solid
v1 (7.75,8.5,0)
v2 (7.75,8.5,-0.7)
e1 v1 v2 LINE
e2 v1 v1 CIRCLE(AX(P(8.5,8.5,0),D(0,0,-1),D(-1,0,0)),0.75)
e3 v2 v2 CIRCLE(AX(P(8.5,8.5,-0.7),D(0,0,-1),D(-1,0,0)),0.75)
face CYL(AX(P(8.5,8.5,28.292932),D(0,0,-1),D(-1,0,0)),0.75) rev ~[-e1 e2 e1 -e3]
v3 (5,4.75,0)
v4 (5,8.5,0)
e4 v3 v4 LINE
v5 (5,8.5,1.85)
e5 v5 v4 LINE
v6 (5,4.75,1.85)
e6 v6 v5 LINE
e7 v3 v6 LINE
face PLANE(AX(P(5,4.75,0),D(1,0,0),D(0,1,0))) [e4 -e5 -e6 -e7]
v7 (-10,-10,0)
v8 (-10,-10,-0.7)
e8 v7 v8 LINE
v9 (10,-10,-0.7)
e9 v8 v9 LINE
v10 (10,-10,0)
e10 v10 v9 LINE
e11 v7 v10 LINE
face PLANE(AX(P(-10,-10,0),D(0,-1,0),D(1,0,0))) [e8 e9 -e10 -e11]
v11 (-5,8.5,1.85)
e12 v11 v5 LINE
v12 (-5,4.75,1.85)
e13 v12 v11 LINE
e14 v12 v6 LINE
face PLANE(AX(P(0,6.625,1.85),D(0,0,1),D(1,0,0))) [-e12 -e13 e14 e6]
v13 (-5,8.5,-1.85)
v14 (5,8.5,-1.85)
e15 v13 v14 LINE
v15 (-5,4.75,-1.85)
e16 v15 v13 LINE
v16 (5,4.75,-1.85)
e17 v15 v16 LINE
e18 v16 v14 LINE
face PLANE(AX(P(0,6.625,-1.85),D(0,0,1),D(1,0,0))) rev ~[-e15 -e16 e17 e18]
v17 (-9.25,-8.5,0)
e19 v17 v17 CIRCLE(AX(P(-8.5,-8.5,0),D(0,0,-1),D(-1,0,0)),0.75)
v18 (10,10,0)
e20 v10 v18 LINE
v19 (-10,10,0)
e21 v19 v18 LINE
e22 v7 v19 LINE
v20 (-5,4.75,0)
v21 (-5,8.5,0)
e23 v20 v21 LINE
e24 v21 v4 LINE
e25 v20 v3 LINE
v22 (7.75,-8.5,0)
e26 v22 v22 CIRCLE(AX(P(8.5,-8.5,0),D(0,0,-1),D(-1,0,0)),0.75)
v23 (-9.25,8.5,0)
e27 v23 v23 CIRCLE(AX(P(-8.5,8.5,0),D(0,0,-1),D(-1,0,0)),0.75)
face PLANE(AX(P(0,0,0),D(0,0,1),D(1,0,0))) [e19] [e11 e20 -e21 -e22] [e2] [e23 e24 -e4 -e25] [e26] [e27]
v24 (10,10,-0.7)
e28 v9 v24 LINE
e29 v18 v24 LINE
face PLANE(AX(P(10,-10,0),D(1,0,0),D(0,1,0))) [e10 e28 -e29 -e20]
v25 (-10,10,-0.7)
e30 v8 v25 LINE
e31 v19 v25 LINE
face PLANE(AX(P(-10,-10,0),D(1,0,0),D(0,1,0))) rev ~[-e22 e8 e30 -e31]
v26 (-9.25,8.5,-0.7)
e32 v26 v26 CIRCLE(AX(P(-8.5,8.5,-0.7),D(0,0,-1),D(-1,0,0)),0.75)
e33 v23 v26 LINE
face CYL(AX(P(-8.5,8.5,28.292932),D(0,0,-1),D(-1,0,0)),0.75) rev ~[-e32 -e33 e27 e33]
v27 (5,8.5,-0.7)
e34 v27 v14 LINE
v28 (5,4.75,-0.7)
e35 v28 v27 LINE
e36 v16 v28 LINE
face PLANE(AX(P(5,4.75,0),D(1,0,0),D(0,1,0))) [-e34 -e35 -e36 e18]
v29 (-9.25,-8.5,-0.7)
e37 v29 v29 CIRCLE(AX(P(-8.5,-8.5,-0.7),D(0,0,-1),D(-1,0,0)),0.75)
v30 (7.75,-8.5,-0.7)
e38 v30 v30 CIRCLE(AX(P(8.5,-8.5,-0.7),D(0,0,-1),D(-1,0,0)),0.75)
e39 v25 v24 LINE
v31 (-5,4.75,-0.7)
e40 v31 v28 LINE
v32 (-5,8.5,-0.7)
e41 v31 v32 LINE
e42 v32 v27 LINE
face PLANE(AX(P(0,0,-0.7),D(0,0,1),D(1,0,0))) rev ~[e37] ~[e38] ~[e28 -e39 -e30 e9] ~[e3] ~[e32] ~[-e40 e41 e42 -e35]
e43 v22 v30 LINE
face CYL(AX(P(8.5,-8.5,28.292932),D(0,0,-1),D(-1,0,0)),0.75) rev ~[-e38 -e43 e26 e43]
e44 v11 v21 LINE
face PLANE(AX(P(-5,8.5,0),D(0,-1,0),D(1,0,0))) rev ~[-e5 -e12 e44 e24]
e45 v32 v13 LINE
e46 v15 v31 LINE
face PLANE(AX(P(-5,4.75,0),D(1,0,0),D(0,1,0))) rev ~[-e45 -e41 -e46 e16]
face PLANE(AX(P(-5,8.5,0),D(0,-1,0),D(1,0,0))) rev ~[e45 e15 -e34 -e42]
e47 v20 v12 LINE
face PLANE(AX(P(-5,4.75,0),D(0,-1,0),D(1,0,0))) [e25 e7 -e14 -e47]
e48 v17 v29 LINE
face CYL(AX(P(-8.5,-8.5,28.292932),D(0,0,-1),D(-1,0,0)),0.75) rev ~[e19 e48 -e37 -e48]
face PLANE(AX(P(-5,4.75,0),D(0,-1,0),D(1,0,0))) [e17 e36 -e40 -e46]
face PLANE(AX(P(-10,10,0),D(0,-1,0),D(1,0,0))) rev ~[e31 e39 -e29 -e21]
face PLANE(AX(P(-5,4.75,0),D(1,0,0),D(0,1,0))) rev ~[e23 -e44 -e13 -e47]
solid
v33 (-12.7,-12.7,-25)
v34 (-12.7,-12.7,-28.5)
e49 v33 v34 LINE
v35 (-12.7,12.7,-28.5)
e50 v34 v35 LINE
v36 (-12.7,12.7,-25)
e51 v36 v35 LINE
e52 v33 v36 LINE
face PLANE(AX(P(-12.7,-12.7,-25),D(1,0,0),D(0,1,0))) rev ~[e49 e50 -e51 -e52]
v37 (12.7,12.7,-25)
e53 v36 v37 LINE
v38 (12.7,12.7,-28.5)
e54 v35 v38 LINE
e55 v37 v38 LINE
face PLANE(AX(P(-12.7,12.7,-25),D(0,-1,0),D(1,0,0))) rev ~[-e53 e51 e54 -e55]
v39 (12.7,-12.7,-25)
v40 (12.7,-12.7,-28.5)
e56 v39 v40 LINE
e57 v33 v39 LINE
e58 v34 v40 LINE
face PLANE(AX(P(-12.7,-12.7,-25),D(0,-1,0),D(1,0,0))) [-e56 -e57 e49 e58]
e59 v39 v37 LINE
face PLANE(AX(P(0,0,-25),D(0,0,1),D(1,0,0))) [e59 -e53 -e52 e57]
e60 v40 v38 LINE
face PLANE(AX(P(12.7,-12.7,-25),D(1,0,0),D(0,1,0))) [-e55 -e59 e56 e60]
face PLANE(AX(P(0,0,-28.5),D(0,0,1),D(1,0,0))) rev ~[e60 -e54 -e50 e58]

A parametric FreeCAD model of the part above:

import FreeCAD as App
import Part
import Sketcher


def add_polygon(sketch, points):
    """Adds a closed chain of lines whose ends are joined by coincident constraints."""
    first, n = sketch.GeometryCount, len(points)
    for a, b in zip(points, points[1:] + points[:1]):
        sketch.addGeometry(Part.LineSegment(App.Vector(*a, 0), App.Vector(*b, 0)), False)
    for i in range(n):
        sketch.addConstraint(Sketcher.Constraint("Coincident", first + i, 2, first + (i + 1) % n, 1))

doc = App.newDocument("Part")
body = doc.addObject("PartDesign::Body", "Body")

# Sketch on XY plane
sketch1 = body.newObject("Sketcher::SketchObject", "Sketch")
sketch1.AttachmentSupport = (doc.getObject("XY_Plane"), [""])
sketch1.MapMode = "FlatFace"
add_polygon(sketch1, [(-10, 10), (-10, -10), (10, -10), (10, 10)])  # lines 0-3
sketch1.addConstraint(Sketcher.Constraint("Vertical", 0))
sketch1.addConstraint(Sketcher.Constraint("Horizontal", 1))
sketch1.addConstraint(Sketcher.Constraint("Vertical", 2))
sketch1.addConstraint(Sketcher.Constraint("Horizontal", 3))
sketch1.addConstraint(Sketcher.Constraint("Symmetric", 0, 2, 2, 2, -1, 1))
sketch1.addConstraint(Sketcher.Constraint("Equal", 3, 0))
sketch1.addConstraint(Sketcher.Constraint("DistanceX", 1, 1, 1, 2, 20.0))
pad1 = body.newObject("PartDesign::Pad", "Pad")
pad1.Profile = sketch1
pad1.Length = 0.7
pad1.Reversed = True

# Sketch on XY plane
sketch2 = body.newObject("Sketcher::SketchObject", "Sketch001")
sketch2.AttachmentSupport = (doc.getObject("XY_Plane"), [""])
sketch2.MapMode = "FlatFace"
sketch2.addGeometry(Part.Circle(App.Vector(-8.5, 8.5, 0), App.Vector(0, 0, 1), 0.8), False)
sketch2.addGeometry(Part.Circle(App.Vector(8.5, 8.5, 0), App.Vector(0, 0, 1), 0.8), False)
sketch2.addGeometry(Part.Circle(App.Vector(8.5, -8.5, 0), App.Vector(0, 0, 1), 0.8), False)
sketch2.addGeometry(Part.Circle(App.Vector(-8.5, -8.5, 0), App.Vector(0, 0, 1), 0.8), False)
sketch2.addConstraint(Sketcher.Constraint("Equal", 0, 1))
sketch2.addConstraint(Sketcher.Constraint("Equal", 1, 2))
sketch2.addConstraint(Sketcher.Constraint("Equal", 2, 3))
sketch2.addConstraint(Sketcher.Constraint("Symmetric", 0, 3, 2, 3, -1, 1))
sketch2.addConstraint(Sketcher.Constraint("Symmetric", 1, 3, 3, 3, -1, 1))
sketch2.addConstraint(Sketcher.Constraint("Symmetric", 0, 3, 1, 3, -2))
sketch2.addConstraint(Sketcher.Constraint("Diameter", 0, 1.5))
sketch2.addConstraint(Sketcher.Constraint("DistanceX", 0, 3, 1, 3, 17.0))
sketch2.addConstraint(Sketcher.Constraint("DistanceY", 2, 3, 1, 3, 17.0))
doc.recompute()
hole = body.newObject("PartDesign::Hole", "Hole")
hole.Profile = sketch2
hole.ThreadType = "None"
hole.Diameter = 1.5
hole.DepthType = "ThroughAll"

# Sketch on XY plane
sketch3 = body.newObject("Sketcher::SketchObject", "Sketch002")
sketch3.AttachmentSupport = (doc.getObject("XY_Plane"), [""])
sketch3.MapMode = "FlatFace"
add_polygon(sketch3, [(-5, 8.5), (-5, 4.8), (5, 4.8), (5, 8.5)])  # lines 0-3
sketch3.addConstraint(Sketcher.Constraint("Vertical", 0))
sketch3.addConstraint(Sketcher.Constraint("Horizontal", 1))
sketch3.addConstraint(Sketcher.Constraint("Vertical", 2))
sketch3.addConstraint(Sketcher.Constraint("Horizontal", 3))
sketch3.addConstraint(Sketcher.Constraint("DistanceX", 1, 1, 1, 2, 10.0))
sketch3.addConstraint(Sketcher.Constraint("DistanceX", 0, 2, -1, 1, 5.0))
sketch3.addConstraint(Sketcher.Constraint("DistanceY", 0, 2, 0, 1, 3.75))
sketch3.addConstraint(Sketcher.Constraint("DistanceY", -1, 1, 2, 2, 8.5))
pad2 = body.newObject("PartDesign::Pad", "Pad001")
pad2.Profile = sketch3
pad2.Length = 3.7
pad2.Midplane = True
body2 = doc.addObject("PartDesign::Body", "Body001")

# Sketch on XY plane
sketch4 = body2.newObject("Sketcher::SketchObject", "Sketch003")
sketch4.AttachmentSupport = (doc.getObject("XY_Plane001"), [""])
sketch4.MapMode = "FlatFace"
sketch4.AttachmentOffset = App.Placement(App.Vector(0, 0, -25), App.Rotation())
add_polygon(sketch4, [(-13, 13), (-13, -13), (13, -13), (13, 13)])  # lines 0-3
sketch4.addConstraint(Sketcher.Constraint("Vertical", 0))
sketch4.addConstraint(Sketcher.Constraint("Horizontal", 1))
sketch4.addConstraint(Sketcher.Constraint("Vertical", 2))
sketch4.addConstraint(Sketcher.Constraint("Horizontal", 3))
sketch4.addConstraint(Sketcher.Constraint("Symmetric", 0, 2, 2, 2, -1, 1))
sketch4.addConstraint(Sketcher.Constraint("Equal", 3, 0))
sketch4.addConstraint(Sketcher.Constraint("DistanceX", 1, 1, 1, 2, 25.4))
pad3 = body2.newObject("PartDesign::Pad", "Pad002")
pad3.Profile = sketch4
pad3.Length = 3.5
pad3.Reversed = True

doc.recompute()
